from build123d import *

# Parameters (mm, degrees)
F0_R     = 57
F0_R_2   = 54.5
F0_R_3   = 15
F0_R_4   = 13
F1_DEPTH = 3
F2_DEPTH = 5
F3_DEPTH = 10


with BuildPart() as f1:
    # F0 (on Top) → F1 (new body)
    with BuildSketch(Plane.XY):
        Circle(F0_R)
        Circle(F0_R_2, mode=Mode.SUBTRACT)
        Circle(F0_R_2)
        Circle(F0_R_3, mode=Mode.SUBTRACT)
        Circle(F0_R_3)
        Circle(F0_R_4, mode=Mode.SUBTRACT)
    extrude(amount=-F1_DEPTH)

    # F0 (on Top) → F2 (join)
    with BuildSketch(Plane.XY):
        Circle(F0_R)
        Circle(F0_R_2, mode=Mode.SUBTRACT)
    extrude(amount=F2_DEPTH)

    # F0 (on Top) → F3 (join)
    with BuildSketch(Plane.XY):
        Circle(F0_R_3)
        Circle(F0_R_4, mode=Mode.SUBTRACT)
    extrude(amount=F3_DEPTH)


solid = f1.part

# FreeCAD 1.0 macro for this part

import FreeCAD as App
import Part
import Sketcher

V = App.Vector
Q = App.Units.Quantity

doc = App.newDocument("Part")
params = doc.addObject("Spreadsheet::Sheet", "Params")
for row, (alias, value) in enumerate([
    ("sketch1_diameter", "114 mm"),
    ("sketch1_diameter2", "26 mm"),
    ("pad1_length", "3 mm"),
    ("sketch2_diameter", "114 mm"),
    ("sketch2_diameter2", "109 mm"),
    ("pad2_length", "5 mm"),
    ("sketch3_diameter", "30 mm"),
    ("sketch3_diameter2", "26 mm"),
    ("pad3_length", "10 mm"),
], start=1):
    params.set(f"A{row}", alias)
    params.set(f"B{row}", "=" + value)
    params.setAlias(f"B{row}", alias)

body = doc.addObject("PartDesign::Body", "Body")

sketch1 = body.newObject("Sketcher::SketchObject", "Sketch")
sketch1.AttachmentSupport = (doc.getObject("XY_Plane"), [""])
sketch1.MapMode = "FlatFace"
sketch1.addGeometry(Part.Circle(V(0, 0, 0), V(0, 0, 1), 57), False)
sketch1.addGeometry(Part.Circle(V(0, 0, 0), V(0, 0, 1), 13), False)
sketch1.addConstraint(Sketcher.Constraint("Coincident", 0, 3, -1, 1))
sketch1.addConstraint(Sketcher.Constraint("Coincident", 1, 3, -1, 1))
sketch1.addConstraint(Sketcher.Constraint("Diameter", 0, Q("114 mm")))
sketch1.addConstraint(Sketcher.Constraint("Diameter", 1, Q("26 mm")))
sketch1.setExpression("Constraints[2]", "Params.sketch1_diameter")
sketch1.setExpression("Constraints[3]", "Params.sketch1_diameter2")
pad1 = body.newObject("PartDesign::Pad", "Pad")
pad1.Profile = sketch1
pad1.setExpression("Length", "Params.pad1_length")
pad1.Reversed = True

sketch2 = body.newObject("Sketcher::SketchObject", "Sketch001")
sketch2.AttachmentSupport = (doc.getObject("XY_Plane"), [""])
sketch2.MapMode = "FlatFace"
sketch2.addGeometry(Part.Circle(V(0, 0, 0), V(0, 0, 1), 57), False)
sketch2.addGeometry(Part.Circle(V(0, 0, 0), V(0, 0, 1), 54), False)
sketch2.addConstraint(Sketcher.Constraint("Coincident", 0, 3, -1, 1))
sketch2.addConstraint(Sketcher.Constraint("Coincident", 1, 3, -1, 1))
sketch2.addConstraint(Sketcher.Constraint("Diameter", 0, Q("114 mm")))
sketch2.addConstraint(Sketcher.Constraint("Diameter", 1, Q("109 mm")))
sketch2.setExpression("Constraints[2]", "Params.sketch2_diameter")
sketch2.setExpression("Constraints[3]", "Params.sketch2_diameter2")
pad2 = body.newObject("PartDesign::Pad", "Pad001")
pad2.Profile = sketch2
pad2.setExpression("Length", "Params.pad2_length")

sketch3 = body.newObject("Sketcher::SketchObject", "Sketch002")
sketch3.AttachmentSupport = (doc.getObject("XY_Plane"), [""])
sketch3.MapMode = "FlatFace"
sketch3.addGeometry(Part.Circle(V(0, 0, 0), V(0, 0, 1), 15), False)
sketch3.addGeometry(Part.Circle(V(0, 0, 0), V(0, 0, 1), 13), False)
sketch3.addConstraint(Sketcher.Constraint("Coincident", 0, 3, -1, 1))
sketch3.addConstraint(Sketcher.Constraint("Coincident", 1, 3, -1, 1))
sketch3.addConstraint(Sketcher.Constraint("Diameter", 0, Q("30 mm")))
sketch3.addConstraint(Sketcher.Constraint("Diameter", 1, Q("26 mm")))
sketch3.setExpression("Constraints[2]", "Params.sketch3_diameter")
sketch3.setExpression("Constraints[3]", "Params.sketch3_diameter2")
pad3 = body.newObject("PartDesign::Pad", "Pad002")
pad3.Profile = sketch3
pad3.setExpression("Length", "Params.pad3_length")

doc.recompute()
